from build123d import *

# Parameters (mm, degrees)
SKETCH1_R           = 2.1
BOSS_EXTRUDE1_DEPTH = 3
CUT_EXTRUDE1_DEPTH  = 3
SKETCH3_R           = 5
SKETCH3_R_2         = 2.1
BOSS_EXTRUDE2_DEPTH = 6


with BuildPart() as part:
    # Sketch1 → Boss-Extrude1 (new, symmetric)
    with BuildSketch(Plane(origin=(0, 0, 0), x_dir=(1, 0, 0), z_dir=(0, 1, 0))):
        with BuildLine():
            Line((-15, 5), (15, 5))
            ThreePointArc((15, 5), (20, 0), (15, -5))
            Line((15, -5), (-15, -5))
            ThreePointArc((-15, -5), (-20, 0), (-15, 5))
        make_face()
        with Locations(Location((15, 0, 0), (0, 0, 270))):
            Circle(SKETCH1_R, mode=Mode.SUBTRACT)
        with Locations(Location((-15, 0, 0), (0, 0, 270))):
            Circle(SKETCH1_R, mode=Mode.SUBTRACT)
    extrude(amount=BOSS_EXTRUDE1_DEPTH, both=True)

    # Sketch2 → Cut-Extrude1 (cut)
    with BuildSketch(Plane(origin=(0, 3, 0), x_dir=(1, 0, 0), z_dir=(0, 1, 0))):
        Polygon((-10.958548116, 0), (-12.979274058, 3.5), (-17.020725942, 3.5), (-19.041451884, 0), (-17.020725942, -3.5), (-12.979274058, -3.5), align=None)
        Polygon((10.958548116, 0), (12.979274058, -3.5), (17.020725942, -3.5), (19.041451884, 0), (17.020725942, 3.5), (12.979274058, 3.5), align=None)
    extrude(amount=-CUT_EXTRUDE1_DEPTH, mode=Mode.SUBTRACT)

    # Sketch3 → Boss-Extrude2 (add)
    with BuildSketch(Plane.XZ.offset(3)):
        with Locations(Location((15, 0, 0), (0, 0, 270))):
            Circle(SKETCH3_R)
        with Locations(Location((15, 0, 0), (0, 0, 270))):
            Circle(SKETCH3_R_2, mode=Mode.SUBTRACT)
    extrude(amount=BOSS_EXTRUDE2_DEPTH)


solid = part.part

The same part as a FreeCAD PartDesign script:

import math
import FreeCAD as App
import Part
import Sketcher
Q = App.Units.Quantity

doc = App.newDocument("Part")
body = doc.addObject("PartDesign::Body", "Body")

sketch1 = body.newObject("Sketcher::SketchObject", "Sketch")
sketch1.AttachmentSupport = (doc.getObject("XZ_Plane"), [""])
sketch1.MapMode = "FlatFace"
sketch1.addGeometry(Part.LineSegment(App.Vector(15, -5, 0), App.Vector(-15, -5, 0)), False)
sketch1.addGeometry(Part.ArcOfCircle(Part.Circle(App.Vector(-15, 0, 0), App.Vector(0, 0, 1), 5), math.radians(90), math.radians(270)), False)
sketch1.addGeometry(Part.LineSegment(App.Vector(-15, 5, 0), App.Vector(15, 5, 0)), False)
sketch1.addGeometry(Part.ArcOfCircle(Part.Circle(App.Vector(15, 0, 0), App.Vector(0, 0, 1), 5), math.radians(-90), math.radians(90)), False)
sketch1.addGeometry(Part.Circle(App.Vector(15, 0, 0), App.Vector(0, 0, 1), 2.1), False)
sketch1.addGeometry(Part.Circle(App.Vector(-15, 0, 0), App.Vector(0, 0, 1), 2.1), False)
sketch1.addConstraint(Sketcher.Constraint("Tangent", 0, 2, 1, 2))
sketch1.addConstraint(Sketcher.Constraint("Tangent", 1, 1, 2, 1))
sketch1.addConstraint(Sketcher.Constraint("Tangent", 2, 2, 3, 2))
sketch1.addConstraint(Sketcher.Constraint("Tangent", 3, 1, 0, 1))
sketch1.addConstraint(Sketcher.Constraint("Horizontal", 0))
sketch1.addConstraint(Sketcher.Constraint("Horizontal", 2))
sketch1.addConstraint(Sketcher.Constraint("Coincident", 4, 3, 3, 3))
sketch1.addConstraint(Sketcher.Constraint("Coincident", 5, 3, 1, 3))
sketch1.addConstraint(Sketcher.Constraint("Equal", 4, 5))
sketch1.addConstraint(Sketcher.Constraint("Symmetric", 1, 3, 3, 3, -1, 1))
sketch1.addConstraint(Sketcher.Constraint("Radius", 1, Q("5 mm")))
sketch1.addConstraint(Sketcher.Constraint("Diameter", 4, Q("4.2 mm")))
sketch1.addConstraint(Sketcher.Constraint("DistanceX", 0, 2, 0, 1, Q("30 mm")))
pad1 = body.newObject("PartDesign::Pad", "Pad")
pad1.Profile = sketch1
pad1.Length = 6
pad1.Midplane = True

sketch2 = body.newObject("Sketcher::SketchObject", "Sketch001")
sketch2.AttachmentSupport = (doc.getObject("XZ_Plane"), [""])
sketch2.MapMode = "FlatFace"
sketch2.AttachmentOffset = App.Placement(App.Vector(0, 0, -3), App.Rotation())
sketch2.addGeometry(Part.LineSegment(App.Vector(-11, 0, 0), App.Vector(-13, -3.5, 0)), False)
sketch2.addGeometry(Part.LineSegment(App.Vector(-13, -3.5, 0), App.Vector(-17, -3.5, 0)), False)
sketch2.addGeometry(Part.LineSegment(App.Vector(-17, -3.5, 0), App.Vector(-19, 0, 0)), False)
sketch2.addGeometry(Part.LineSegment(App.Vector(-19, 0, 0), App.Vector(-17, 3.5, 0)), False)
sketch2.addGeometry(Part.LineSegment(App.Vector(-17, 3.5, 0), App.Vector(-13, 3.5, 0)), False)
sketch2.addGeometry(Part.LineSegment(App.Vector(-13, 3.5, 0), App.Vector(-11, 0, 0)), False)
sketch2.addGeometry(Part.LineSegment(App.Vector(11, 0, 0), App.Vector(13, 3.5, 0)), False)
sketch2.addGeometry(Part.LineSegment(App.Vector(13, 3.5, 0), App.Vector(17, 3.5, 0)), False)
sketch2.addGeometry(Part.LineSegment(App.Vector(17, 3.5, 0), App.Vector(19, 0, 0)), False)
sketch2.addGeometry(Part.LineSegment(App.Vector(19, 0, 0), App.Vector(17, -3.5, 0)), False)
sketch2.addGeometry(Part.LineSegment(App.Vector(17, -3.5, 0), App.Vector(13, -3.5, 0)), False)
sketch2.addGeometry(Part.LineSegment(App.Vector(13, -3.5, 0), App.Vector(11, 0, 0)), False)
sketch2.addConstraint(Sketcher.Constraint("Coincident", 0, 2, 1, 1))
sketch2.addConstraint(Sketcher.Constraint("Coincident", 1, 2, 2, 1))
sketch2.addConstraint(Sketcher.Constraint("Coincident", 2, 2, 3, 1))
sketch2.addConstraint(Sketcher.Constraint("Coincident", 3, 2, 4, 1))
sketch2.addConstraint(Sketcher.Constraint("Coincident", 4, 2, 5, 1))
sketch2.addConstraint(Sketcher.Constraint("Coincident", 5, 2, 0, 1))
sketch2.addConstraint(Sketcher.Constraint("Coincident", 6, 2, 7, 1))
sketch2.addConstraint(Sketcher.Constraint("Coincident", 7, 2, 8, 1))
sketch2.addConstraint(Sketcher.Constraint("Coincident", 8, 2, 9, 1))
sketch2.addConstraint(Sketcher.Constraint("Coincident", 9, 2, 10, 1))
sketch2.addConstraint(Sketcher.Constraint("Coincident", 10, 2, 11, 1))
sketch2.addConstraint(Sketcher.Constraint("Coincident", 11, 2, 6, 1))
sketch2.addConstraint(Sketcher.Constraint("Horizontal", 1))
sketch2.addConstraint(Sketcher.Constraint("Horizontal", 4))
sketch2.addConstraint(Sketcher.Constraint("Horizontal", 7))
sketch2.addConstraint(Sketcher.Constraint("Horizontal", 10))
sketch2.addConstraint(Sketcher.Constraint("Symmetric", 0, 2, 6, 2, -1, 1))
sketch2.addConstraint(Sketcher.Constraint("Symmetric", 2, 2, 8, 2, -1, 1))
sketch2.addConstraint(Sketcher.Constraint("Symmetric", 3, 2, 9, 2, -1, 1))
sketch2.addConstraint(Sketcher.Constraint("Symmetric", 5, 2, 11, 2, -1, 1))
sketch2.addConstraint(Sketcher.Constraint("Symmetric", 4, 2, 6, 2, -2))
sketch2.addConstraint(Sketcher.Constraint("PointOnObject", 2, 2, -1))
sketch2.addConstraint(Sketcher.Constraint("PointOnObject", 5, 2, -1))
sketch2.addConstraint(Sketcher.Constraint("Parallel", 0, 3))
sketch2.addConstraint(Sketcher.Constraint("Parallel", 2, 5))
sketch2.addConstraint(Sketcher.Constraint("Parallel", 5, 8))
sketch2.addConstraint(Sketcher.Constraint("Parallel", 8, 11))
sketch2.addConstraint(Sketcher.Constraint("Angle", 0, Q("-120 deg")))
sketch2.addConstraint(Sketcher.Constraint("DistanceY", 1, 2, 3, 2, Q("7 mm")))
sketch2.addConstraint(Sketcher.Constraint("DistanceX", 3, 2, 6, 2, Q("30 mm")))
sketch2.addConstraint(Sketcher.Constraint("DistanceX", 1, 2, 1, 1, Q("4.041452 mm")))
pocket1 = body.newObject("PartDesign::Pocket", "Pocket")
pocket1.Profile = sketch2
pocket1.Length = 3
pocket1.Reversed = True

sketch3 = body.newObject("Sketcher::SketchObject", "Sketch002")
sketch3.AttachmentSupport = (doc.getObject("XZ_Plane"), [""])
sketch3.MapMode = "FlatFace"
sketch3.AttachmentOffset = App.Placement(App.Vector(0, 0, 3), App.Rotation())
sketch3.addGeometry(Part.Circle(App.Vector(15, 0, 0), App.Vector(0, 0, 1), 5), False)
sketch3.addGeometry(Part.Circle(App.Vector(15, 0, 0), App.Vector(0, 0, 1), 2.1), False)
sketch3.addConstraint(Sketcher.Constraint("Coincident", 1, 3, 0, 3))
sketch3.addConstraint(Sketcher.Constraint("PointOnObject", 0, 3, -1))
sketch3.addConstraint(Sketcher.Constraint("Diameter", 0, Q("10 mm")))
sketch3.addConstraint(Sketcher.Constraint("Diameter", 1, Q("4.2 mm")))
sketch3.addConstraint(Sketcher.Constraint("DistanceX", -1, 1, 0, 3, Q("15 mm")))
pad2 = body.newObject("PartDesign::Pad", "Pad001")
pad2.Profile = sketch3
pad2.Length = 6

doc.recompute()
